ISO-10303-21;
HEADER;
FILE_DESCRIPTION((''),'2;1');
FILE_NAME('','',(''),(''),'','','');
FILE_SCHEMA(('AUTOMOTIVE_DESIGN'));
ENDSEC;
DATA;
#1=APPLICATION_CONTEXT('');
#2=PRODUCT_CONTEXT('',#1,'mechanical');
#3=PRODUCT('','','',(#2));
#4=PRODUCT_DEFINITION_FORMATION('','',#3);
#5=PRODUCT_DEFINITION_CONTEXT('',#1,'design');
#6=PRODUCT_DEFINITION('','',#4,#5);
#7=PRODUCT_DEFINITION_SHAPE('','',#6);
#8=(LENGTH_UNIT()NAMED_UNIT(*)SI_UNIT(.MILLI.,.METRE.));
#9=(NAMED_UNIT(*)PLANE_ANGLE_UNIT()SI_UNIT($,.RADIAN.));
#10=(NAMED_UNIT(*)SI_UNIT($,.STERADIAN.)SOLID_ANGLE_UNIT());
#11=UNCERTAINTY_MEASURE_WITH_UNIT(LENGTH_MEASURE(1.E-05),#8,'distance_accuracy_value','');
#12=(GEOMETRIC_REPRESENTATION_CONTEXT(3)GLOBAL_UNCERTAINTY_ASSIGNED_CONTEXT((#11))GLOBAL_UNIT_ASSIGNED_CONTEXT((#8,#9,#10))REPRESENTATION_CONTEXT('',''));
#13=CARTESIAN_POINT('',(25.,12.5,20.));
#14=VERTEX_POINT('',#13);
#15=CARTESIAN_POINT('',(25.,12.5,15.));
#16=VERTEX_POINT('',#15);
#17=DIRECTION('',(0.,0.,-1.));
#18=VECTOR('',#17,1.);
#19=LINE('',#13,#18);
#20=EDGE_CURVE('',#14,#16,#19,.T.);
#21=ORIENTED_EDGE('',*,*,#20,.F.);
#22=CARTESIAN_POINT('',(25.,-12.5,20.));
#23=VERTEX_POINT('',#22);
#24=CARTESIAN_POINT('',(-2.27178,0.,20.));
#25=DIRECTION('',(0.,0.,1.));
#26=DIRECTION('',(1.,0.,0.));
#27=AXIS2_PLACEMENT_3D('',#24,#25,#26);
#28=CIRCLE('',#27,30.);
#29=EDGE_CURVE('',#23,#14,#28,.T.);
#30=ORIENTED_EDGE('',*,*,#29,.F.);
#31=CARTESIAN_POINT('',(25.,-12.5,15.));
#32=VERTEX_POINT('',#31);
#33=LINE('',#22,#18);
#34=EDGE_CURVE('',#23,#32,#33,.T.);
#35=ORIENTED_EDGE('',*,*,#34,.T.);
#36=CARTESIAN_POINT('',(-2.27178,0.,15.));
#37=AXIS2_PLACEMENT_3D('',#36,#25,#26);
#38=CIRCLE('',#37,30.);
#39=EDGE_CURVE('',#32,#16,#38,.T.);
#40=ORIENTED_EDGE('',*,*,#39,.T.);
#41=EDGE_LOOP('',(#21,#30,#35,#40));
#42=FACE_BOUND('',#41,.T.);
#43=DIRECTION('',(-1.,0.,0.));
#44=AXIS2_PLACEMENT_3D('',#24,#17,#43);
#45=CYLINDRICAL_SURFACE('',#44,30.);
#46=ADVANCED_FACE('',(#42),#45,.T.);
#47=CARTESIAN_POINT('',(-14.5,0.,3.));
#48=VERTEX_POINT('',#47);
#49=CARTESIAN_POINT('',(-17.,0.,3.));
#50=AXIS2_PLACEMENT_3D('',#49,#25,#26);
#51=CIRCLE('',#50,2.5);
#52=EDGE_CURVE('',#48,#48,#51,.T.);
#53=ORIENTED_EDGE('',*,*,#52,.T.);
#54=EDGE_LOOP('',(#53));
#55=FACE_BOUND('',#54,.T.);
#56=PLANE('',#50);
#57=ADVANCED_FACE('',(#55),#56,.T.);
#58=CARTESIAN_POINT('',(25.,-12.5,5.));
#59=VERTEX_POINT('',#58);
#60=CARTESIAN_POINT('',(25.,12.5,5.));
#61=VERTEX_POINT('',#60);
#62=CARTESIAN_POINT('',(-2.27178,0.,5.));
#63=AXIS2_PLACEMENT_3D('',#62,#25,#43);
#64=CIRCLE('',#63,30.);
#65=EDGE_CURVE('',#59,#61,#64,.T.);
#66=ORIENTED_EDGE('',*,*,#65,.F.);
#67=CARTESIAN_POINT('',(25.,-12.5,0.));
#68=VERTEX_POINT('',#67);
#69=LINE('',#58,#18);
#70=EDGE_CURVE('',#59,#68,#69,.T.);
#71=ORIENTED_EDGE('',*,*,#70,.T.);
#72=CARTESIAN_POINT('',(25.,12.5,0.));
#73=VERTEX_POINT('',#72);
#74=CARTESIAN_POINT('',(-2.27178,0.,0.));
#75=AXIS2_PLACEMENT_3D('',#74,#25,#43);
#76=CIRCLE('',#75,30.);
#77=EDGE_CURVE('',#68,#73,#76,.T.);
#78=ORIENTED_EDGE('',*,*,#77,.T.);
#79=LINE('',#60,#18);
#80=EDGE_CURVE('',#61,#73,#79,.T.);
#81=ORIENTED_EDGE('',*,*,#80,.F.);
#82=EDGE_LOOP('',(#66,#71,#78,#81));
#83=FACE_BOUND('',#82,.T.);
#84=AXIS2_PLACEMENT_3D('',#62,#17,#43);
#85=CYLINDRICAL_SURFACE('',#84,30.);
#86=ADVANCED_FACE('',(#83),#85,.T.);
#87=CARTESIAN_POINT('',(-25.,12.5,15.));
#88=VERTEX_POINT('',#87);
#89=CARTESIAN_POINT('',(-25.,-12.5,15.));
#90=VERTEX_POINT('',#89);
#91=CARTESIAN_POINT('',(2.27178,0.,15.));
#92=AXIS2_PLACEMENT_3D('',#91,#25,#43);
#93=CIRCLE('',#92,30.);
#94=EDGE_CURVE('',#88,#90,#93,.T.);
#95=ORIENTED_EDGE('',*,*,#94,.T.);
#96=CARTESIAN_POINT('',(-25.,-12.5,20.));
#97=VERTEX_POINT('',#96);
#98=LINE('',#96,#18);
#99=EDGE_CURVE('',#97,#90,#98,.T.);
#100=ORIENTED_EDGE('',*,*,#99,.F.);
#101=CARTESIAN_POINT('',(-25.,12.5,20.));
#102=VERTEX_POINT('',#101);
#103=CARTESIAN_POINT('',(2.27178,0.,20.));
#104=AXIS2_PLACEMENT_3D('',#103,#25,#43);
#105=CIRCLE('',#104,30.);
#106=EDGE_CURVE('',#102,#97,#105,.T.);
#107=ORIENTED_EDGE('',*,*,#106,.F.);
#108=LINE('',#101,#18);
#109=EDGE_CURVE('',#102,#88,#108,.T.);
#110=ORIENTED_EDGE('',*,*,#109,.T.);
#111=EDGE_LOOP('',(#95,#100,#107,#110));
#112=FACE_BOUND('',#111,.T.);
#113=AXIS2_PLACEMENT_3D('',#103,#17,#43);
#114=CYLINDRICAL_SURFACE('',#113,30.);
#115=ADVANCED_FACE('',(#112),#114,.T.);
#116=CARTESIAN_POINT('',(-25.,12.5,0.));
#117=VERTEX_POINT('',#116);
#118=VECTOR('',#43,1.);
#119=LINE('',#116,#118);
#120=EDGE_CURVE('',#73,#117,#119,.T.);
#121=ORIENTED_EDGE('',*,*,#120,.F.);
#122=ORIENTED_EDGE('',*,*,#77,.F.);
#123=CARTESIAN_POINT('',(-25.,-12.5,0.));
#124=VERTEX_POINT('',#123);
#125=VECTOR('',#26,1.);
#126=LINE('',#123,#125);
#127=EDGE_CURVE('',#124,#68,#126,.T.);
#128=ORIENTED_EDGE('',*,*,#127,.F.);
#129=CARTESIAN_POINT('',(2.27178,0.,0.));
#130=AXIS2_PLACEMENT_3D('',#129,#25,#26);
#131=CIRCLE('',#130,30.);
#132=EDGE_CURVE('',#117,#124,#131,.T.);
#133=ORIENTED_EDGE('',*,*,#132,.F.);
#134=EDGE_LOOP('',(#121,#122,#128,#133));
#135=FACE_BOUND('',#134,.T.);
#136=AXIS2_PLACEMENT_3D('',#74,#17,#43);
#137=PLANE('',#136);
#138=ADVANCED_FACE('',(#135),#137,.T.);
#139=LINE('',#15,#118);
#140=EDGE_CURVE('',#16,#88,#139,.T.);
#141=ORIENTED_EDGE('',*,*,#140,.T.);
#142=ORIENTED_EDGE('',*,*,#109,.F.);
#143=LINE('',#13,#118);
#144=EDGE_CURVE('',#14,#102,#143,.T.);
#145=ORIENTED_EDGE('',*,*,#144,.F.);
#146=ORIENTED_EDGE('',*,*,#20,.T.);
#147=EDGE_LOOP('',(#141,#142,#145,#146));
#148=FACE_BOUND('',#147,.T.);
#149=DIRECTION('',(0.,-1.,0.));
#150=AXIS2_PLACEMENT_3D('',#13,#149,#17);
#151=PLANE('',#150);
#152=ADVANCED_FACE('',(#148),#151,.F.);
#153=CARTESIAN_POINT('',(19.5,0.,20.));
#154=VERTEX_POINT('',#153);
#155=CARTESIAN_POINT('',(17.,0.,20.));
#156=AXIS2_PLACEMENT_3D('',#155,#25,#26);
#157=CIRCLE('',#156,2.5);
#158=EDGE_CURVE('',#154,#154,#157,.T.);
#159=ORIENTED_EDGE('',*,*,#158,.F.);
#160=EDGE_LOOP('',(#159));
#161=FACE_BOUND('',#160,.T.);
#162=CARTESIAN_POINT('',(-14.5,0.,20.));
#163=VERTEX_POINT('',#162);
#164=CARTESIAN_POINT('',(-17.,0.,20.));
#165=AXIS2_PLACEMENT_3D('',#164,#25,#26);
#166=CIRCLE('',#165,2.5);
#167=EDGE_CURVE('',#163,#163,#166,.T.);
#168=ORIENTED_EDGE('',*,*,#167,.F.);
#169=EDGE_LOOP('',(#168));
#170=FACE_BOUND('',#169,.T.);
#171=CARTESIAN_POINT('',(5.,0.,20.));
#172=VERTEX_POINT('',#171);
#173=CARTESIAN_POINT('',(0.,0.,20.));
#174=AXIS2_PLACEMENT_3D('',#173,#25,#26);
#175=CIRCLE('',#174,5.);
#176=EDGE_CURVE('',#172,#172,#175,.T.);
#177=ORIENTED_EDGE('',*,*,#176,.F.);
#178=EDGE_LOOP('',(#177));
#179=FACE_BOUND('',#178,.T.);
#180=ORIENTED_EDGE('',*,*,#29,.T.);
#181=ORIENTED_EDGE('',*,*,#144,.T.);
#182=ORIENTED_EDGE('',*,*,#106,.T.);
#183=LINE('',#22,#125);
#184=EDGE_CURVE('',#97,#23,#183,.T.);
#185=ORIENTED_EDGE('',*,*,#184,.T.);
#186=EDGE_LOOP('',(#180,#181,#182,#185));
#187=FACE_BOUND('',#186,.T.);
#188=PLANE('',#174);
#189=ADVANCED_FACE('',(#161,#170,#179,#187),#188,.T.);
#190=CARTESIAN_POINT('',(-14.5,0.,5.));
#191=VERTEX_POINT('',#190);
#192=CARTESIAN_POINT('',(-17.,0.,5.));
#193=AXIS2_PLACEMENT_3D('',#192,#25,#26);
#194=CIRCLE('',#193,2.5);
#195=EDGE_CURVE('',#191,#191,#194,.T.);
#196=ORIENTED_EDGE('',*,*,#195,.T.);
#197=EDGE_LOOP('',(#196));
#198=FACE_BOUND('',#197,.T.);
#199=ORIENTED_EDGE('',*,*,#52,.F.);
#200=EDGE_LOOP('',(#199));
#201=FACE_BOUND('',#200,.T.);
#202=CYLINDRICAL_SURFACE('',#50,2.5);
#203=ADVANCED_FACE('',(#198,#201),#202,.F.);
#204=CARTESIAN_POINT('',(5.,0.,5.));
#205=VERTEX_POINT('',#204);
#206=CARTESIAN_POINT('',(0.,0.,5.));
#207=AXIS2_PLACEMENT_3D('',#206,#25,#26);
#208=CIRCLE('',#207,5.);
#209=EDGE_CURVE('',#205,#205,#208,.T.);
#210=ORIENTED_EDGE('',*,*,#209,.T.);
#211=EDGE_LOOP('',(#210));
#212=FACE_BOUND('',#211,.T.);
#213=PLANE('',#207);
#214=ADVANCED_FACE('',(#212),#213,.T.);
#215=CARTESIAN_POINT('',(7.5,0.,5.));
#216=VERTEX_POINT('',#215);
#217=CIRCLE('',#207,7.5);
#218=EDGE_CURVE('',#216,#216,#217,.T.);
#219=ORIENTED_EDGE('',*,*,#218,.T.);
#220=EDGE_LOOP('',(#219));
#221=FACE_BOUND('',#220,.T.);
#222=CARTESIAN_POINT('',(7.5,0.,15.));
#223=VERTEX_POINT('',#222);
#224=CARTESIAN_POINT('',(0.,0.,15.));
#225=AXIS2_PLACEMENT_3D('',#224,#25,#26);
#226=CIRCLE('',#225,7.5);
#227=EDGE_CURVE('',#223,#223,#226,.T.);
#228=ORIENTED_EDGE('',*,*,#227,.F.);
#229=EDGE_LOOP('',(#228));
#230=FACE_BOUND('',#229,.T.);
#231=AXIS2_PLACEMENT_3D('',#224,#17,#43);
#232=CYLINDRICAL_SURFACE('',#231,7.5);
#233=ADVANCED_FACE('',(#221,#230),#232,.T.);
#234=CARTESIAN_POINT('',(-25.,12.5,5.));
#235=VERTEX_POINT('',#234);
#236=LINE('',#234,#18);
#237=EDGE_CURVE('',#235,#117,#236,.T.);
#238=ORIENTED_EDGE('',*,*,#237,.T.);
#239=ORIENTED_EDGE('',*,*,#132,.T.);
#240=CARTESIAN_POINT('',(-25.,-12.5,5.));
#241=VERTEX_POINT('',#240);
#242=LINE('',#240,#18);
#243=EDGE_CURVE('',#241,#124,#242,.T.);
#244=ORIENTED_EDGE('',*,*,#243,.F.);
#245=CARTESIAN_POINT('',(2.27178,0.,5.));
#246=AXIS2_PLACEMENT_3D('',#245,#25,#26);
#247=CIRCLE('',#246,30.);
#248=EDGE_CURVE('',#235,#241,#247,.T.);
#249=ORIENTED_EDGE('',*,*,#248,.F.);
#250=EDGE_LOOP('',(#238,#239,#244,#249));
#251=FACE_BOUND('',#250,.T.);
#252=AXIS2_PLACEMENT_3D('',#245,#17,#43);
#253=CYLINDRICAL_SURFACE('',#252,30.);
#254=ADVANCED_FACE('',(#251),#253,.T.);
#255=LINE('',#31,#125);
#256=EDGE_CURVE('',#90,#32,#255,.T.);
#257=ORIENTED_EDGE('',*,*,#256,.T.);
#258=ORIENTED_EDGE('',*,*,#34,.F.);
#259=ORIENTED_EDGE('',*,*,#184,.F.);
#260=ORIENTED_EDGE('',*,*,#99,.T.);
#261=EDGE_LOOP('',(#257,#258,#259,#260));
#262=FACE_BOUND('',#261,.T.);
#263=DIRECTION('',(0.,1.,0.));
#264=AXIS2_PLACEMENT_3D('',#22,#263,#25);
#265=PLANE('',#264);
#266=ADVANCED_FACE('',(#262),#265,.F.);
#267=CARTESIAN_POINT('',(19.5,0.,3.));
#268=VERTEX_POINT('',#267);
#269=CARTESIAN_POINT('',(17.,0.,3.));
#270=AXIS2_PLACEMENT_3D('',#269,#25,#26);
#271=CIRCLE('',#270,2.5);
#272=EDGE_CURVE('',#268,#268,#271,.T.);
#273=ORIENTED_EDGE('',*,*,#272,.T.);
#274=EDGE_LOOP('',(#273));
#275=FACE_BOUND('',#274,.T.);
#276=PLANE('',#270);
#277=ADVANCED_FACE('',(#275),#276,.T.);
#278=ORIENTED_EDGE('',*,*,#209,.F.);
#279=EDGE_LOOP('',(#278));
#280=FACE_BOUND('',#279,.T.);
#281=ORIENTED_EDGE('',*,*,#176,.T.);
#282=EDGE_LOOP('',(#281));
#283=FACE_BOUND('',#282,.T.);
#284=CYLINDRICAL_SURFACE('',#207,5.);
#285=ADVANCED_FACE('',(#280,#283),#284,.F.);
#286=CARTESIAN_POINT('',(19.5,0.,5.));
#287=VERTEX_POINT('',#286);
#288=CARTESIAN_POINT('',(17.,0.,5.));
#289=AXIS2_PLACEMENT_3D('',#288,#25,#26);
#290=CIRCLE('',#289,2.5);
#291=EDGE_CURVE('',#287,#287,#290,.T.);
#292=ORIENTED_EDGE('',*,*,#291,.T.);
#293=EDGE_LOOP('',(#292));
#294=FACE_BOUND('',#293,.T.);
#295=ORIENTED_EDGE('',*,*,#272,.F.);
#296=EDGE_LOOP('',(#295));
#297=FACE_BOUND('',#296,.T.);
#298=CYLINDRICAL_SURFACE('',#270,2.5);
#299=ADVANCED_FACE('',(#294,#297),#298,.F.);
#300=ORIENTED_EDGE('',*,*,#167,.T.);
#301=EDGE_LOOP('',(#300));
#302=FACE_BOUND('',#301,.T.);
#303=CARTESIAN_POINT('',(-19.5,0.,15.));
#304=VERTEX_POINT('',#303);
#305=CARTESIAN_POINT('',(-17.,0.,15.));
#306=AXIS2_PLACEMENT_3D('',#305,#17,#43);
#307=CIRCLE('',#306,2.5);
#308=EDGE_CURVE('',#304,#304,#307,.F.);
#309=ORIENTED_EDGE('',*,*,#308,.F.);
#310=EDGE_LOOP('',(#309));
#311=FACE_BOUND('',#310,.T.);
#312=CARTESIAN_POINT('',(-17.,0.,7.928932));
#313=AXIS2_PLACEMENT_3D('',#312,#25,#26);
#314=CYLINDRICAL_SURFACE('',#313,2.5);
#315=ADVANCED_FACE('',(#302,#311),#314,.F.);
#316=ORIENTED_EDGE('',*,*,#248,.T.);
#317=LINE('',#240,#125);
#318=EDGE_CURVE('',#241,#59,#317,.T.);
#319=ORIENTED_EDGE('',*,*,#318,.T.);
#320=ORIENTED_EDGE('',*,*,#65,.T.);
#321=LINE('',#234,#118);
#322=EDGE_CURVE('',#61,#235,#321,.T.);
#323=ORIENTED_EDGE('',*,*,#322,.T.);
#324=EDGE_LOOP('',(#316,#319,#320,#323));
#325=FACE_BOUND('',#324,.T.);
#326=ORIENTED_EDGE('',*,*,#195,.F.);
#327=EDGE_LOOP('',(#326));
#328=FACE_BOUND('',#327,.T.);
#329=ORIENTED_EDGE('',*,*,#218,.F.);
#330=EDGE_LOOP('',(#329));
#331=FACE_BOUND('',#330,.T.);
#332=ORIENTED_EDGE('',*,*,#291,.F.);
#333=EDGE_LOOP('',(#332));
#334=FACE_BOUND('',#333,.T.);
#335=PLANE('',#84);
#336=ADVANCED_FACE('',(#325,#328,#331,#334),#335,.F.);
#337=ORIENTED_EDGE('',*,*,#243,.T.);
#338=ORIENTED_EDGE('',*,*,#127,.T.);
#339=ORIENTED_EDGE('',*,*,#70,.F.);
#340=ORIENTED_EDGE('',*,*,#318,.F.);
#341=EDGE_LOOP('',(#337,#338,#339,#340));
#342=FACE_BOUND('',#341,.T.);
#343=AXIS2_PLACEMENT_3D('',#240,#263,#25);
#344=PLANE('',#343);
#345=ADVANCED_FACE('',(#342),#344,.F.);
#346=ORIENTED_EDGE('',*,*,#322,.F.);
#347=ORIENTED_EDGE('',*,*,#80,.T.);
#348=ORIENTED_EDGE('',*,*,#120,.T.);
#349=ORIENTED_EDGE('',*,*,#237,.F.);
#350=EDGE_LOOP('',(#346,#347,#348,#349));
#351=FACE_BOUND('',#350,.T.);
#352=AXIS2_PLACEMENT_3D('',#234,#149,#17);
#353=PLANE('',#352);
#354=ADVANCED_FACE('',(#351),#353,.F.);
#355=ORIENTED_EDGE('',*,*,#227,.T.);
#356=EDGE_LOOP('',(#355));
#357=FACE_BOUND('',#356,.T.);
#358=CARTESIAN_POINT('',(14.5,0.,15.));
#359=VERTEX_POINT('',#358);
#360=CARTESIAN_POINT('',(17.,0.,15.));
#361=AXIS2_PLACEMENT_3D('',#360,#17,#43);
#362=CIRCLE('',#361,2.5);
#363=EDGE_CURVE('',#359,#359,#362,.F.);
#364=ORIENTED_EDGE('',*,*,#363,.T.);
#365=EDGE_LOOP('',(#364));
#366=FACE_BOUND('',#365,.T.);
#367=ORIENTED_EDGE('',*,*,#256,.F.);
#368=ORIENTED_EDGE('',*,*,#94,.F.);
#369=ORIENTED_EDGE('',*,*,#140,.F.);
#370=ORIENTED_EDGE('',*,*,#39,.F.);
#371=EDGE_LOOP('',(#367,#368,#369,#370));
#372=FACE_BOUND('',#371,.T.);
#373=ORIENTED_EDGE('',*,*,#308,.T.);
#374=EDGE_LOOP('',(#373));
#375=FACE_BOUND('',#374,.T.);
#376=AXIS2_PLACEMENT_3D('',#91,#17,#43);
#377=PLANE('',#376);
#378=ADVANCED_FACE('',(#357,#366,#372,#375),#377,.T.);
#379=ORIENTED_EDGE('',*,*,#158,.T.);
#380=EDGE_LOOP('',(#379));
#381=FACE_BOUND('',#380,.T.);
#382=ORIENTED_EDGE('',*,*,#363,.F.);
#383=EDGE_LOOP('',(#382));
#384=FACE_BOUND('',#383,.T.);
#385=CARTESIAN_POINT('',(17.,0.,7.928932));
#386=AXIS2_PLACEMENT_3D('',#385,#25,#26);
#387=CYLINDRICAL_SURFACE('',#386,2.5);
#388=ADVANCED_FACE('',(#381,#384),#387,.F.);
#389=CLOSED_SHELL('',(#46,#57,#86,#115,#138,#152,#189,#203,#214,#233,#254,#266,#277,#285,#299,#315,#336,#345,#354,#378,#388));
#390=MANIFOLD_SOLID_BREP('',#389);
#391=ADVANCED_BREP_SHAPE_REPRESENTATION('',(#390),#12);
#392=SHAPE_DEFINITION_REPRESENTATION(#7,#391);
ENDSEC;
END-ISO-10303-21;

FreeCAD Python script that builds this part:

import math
import FreeCAD as App
import Part
import Sketcher

doc = App.newDocument("Part")
body = doc.addObject("PartDesign::Body", "Body")

# Sketch on XY plane
sketch1 = body.newObject("Sketcher::SketchObject", "Sketch")
sketch1.AttachmentSupport = (doc.getObject("XY_Plane"), [""])
sketch1.MapMode = "FlatFace"
sketch1.addGeometry([
    Part.LineSegment(App.Vector(-25, -12, 0), App.Vector(25, -12, 0)),
    Part.ArcOfCircle(Part.Circle(App.Vector(-2, 0, 0), App.Vector(0, 0, 1), 30), math.radians(-25), math.radians(25)),
    Part.LineSegment(App.Vector(25, 12, 0), App.Vector(-25, 12, 0)),
    Part.ArcOfCircle(Part.Circle(App.Vector(2, 0, 0), App.Vector(0, 0, 1), 30), math.radians(155), math.radians(205)),
], False)
sketch1.addConstraint([
    Sketcher.Constraint("Coincident", 0, 2, 1, 1),
    Sketcher.Constraint("Coincident", 1, 2, 2, 1),
    Sketcher.Constraint("Coincident", 2, 2, 3, 1),
    Sketcher.Constraint("Coincident", 3, 2, 0, 1),
    Sketcher.Constraint("Horizontal", 0),
    Sketcher.Constraint("Horizontal", 2),
    Sketcher.Constraint("Equal", 1, 3),
    Sketcher.Constraint("Symmetric", 1, 3, 3, 3, -1, 1),
    Sketcher.Constraint("Symmetric", 0, 2, 1, 2, -1),
    Sketcher.Constraint("Radius", 1, 30.0),
    Sketcher.Constraint("DistanceX", 0, 1, 0, 2, 50.0),
    Sketcher.Constraint("DistanceY", 0, 2, 1, 2, 25.0),
])
pad1 = body.newObject("PartDesign::Pad", "Pad")
pad1.Profile = sketch1
pad1.Length = 5

# Sketch on XY plane
sketch2 = body.newObject("Sketcher::SketchObject", "Sketch001")
sketch2.AttachmentSupport = (doc.getObject("XY_Plane"), [""])
sketch2.MapMode = "FlatFace"
sketch2.AttachmentOffset = App.Placement(App.Vector(0, 0, 5), App.Rotation())
sketch2.addGeometry(Part.Circle(App.Vector(0, 0, 0), App.Vector(0, 0, 1), 8), False)
sketch2.addConstraint([
    Sketcher.Constraint("Coincident", 0, 3, -1, 1),
    Sketcher.Constraint("Diameter", 0, 15.0),
])
pad2 = body.newObject("PartDesign::Pad", "Pad001")
pad2.Profile = sketch2
pad2.Length = 10

# Sketch on XY plane
sketch3 = body.newObject("Sketcher::SketchObject", "Sketch002")
sketch3.AttachmentSupport = (doc.getObject("XY_Plane"), [""])
sketch3.MapMode = "FlatFace"
sketch3.AttachmentOffset = App.Placement(App.Vector(0, 0, 5), App.Rotation())
sketch3.addGeometry([
    Part.Circle(App.Vector(17, 0, 0), App.Vector(0, 0, 1), 2.5),
    Part.Circle(App.Vector(-17, 0, 0), App.Vector(0, 0, 1), 2.5),
], False)
sketch3.addConstraint([
    Sketcher.Constraint("Equal", 0, 1),
    Sketcher.Constraint("Symmetric", 0, 3, 1, 3, -1, 1),
    Sketcher.Constraint("PointOnObject", 0, 3, -1),
    Sketcher.Constraint("Diameter", 0, 5.0),
    Sketcher.Constraint("DistanceX", -1, 1, 0, 3, 17.0),
])
pocket1 = body.newObject("PartDesign::Pocket", "Pocket")
pocket1.Profile = sketch3
pocket1.Length = 2
body2 = doc.addObject("PartDesign::Body", "Body001")

# Sketch on XY plane
sketch4 = body2.newObject("Sketcher::SketchObject", "Sketch003")
sketch4.AttachmentSupport = (doc.getObject("XY_Plane001"), [""])
sketch4.MapMode = "FlatFace"
sketch4.AttachmentOffset = App.Placement(App.Vector(0, 0, 15), App.Rotation())
sketch4.addGeometry([
    Part.LineSegment(App.Vector(25, 12, 0), App.Vector(-25, 12, 0)),  # 0
    Part.ArcOfCircle(Part.Circle(App.Vector(2, 0, 0), App.Vector(0, 0, 1), 30), math.radians(155), math.radians(205)),  # 1
    Part.LineSegment(App.Vector(-25, -12, 0), App.Vector(25, -12, 0)),  # 2
    Part.ArcOfCircle(Part.Circle(App.Vector(-2, 0, 0), App.Vector(0, 0, 1), 30), math.radians(-25), math.radians(25)),  # 3
    Part.Circle(App.Vector(0, 0, 0), App.Vector(0, 0, 1), 8),  # 4
], False)
sketch4.addConstraint([
    Sketcher.Constraint("Coincident", 0, 2, 1, 1),
    Sketcher.Constraint("Coincident", 1, 2, 2, 1),
    Sketcher.Constraint("Coincident", 2, 2, 3, 1),
    Sketcher.Constraint("Coincident", 3, 2, 0, 1),
    Sketcher.Constraint("Horizontal", 0),
    Sketcher.Constraint("Horizontal", 2),
    Sketcher.Constraint("Coincident", 4, 3, -1, 1),
    Sketcher.Constraint("Equal", 1, 3),
    Sketcher.Constraint("Symmetric", 1, 3, 3, 3, -1, 1),
    Sketcher.Constraint("Symmetric", 0, 2, 1, 2, -1),
    Sketcher.Constraint("Diameter", 4, 15.0),
    Sketcher.Constraint("Radius", 1, 30.0),
    Sketcher.Constraint("DistanceX", 0, 2, 0, 1, 50.0),
    Sketcher.Constraint("DistanceY", 1, 2, 0, 2, 25.0),
])
pad3 = body2.newObject("PartDesign::Pad", "Pad002")
pad3.Profile = sketch4
pad3.Length = 5
body.AllowCompound = True
doc.recompute()

boolean = body.newObject("PartDesign::Boolean", "Boolean")
boolean.Type = "Fuse"
boolean.addObjects([body2])

# Sketch on XY plane
sketch5 = body.newObject("Sketcher::SketchObject", "Sketch004")
sketch5.AttachmentSupport = (doc.getObject("XY_Plane"), [""])
sketch5.MapMode = "FlatFace"
sketch5.AttachmentOffset = App.Placement(App.Vector(0, 0, 15), App.Rotation())
sketch5.addGeometry(Part.Circle(App.Vector(0, 0, 0), App.Vector(0, 0, 1), 8), False)
sketch5.addConstraint([
    Sketcher.Constraint("Coincident", 0, 3, -1, 1),
    Sketcher.Constraint("Diameter", 0, 15.0),
])
pad4 = body.newObject("PartDesign::Pad", "Pad003")
pad4.Profile = sketch5
pad4.Length = 5

# Sketch on XY plane
sketch6 = body.newObject("Sketcher::SketchObject", "Sketch005")
sketch6.AttachmentSupport = (doc.getObject("XY_Plane"), [""])
sketch6.MapMode = "FlatFace"
sketch6.AttachmentOffset = App.Placement(App.Vector(0, 0, 20), App.Rotation())
sketch6.addGeometry(Part.Circle(App.Vector(0, 0, 0), App.Vector(0, 0, 1), 5), False)
sketch6.addConstraint([
    Sketcher.Constraint("Coincident", 0, 3, -1, 1),
    Sketcher.Constraint("Diameter", 0, 10.0),
])
pocket2 = body.newObject("PartDesign::Pocket", "Pocket001")
pocket2.Profile = sketch6
pocket2.Length = 15

# Sketch on XY plane
sketch7 = body.newObject("Sketcher::SketchObject", "Sketch006")
sketch7.AttachmentSupport = (doc.getObject("XY_Plane"), [""])
sketch7.MapMode = "FlatFace"
sketch7.AttachmentOffset = App.Placement(App.Vector(0, 0, 20), App.Rotation())
sketch7.addGeometry([
    Part.Circle(App.Vector(17, 0, 0), App.Vector(0, 0, 1), 2.5),
    Part.Circle(App.Vector(-17, 0, 0), App.Vector(0, 0, 1), 2.5),
], False)
sketch7.addConstraint([
    Sketcher.Constraint("Equal", 0, 1),
    Sketcher.Constraint("Symmetric", 0, 3, 1, 3, -1, 1),
    Sketcher.Constraint("PointOnObject", 0, 3, -1),
    Sketcher.Constraint("Diameter", 0, 5.0),
    Sketcher.Constraint("DistanceX", -1, 1, 0, 3, 17.0),
])
pocket3 = body.newObject("PartDesign::Pocket", "Pocket002")
pocket3.Profile = sketch7
pocket3.Length = 5

doc.recompute()
